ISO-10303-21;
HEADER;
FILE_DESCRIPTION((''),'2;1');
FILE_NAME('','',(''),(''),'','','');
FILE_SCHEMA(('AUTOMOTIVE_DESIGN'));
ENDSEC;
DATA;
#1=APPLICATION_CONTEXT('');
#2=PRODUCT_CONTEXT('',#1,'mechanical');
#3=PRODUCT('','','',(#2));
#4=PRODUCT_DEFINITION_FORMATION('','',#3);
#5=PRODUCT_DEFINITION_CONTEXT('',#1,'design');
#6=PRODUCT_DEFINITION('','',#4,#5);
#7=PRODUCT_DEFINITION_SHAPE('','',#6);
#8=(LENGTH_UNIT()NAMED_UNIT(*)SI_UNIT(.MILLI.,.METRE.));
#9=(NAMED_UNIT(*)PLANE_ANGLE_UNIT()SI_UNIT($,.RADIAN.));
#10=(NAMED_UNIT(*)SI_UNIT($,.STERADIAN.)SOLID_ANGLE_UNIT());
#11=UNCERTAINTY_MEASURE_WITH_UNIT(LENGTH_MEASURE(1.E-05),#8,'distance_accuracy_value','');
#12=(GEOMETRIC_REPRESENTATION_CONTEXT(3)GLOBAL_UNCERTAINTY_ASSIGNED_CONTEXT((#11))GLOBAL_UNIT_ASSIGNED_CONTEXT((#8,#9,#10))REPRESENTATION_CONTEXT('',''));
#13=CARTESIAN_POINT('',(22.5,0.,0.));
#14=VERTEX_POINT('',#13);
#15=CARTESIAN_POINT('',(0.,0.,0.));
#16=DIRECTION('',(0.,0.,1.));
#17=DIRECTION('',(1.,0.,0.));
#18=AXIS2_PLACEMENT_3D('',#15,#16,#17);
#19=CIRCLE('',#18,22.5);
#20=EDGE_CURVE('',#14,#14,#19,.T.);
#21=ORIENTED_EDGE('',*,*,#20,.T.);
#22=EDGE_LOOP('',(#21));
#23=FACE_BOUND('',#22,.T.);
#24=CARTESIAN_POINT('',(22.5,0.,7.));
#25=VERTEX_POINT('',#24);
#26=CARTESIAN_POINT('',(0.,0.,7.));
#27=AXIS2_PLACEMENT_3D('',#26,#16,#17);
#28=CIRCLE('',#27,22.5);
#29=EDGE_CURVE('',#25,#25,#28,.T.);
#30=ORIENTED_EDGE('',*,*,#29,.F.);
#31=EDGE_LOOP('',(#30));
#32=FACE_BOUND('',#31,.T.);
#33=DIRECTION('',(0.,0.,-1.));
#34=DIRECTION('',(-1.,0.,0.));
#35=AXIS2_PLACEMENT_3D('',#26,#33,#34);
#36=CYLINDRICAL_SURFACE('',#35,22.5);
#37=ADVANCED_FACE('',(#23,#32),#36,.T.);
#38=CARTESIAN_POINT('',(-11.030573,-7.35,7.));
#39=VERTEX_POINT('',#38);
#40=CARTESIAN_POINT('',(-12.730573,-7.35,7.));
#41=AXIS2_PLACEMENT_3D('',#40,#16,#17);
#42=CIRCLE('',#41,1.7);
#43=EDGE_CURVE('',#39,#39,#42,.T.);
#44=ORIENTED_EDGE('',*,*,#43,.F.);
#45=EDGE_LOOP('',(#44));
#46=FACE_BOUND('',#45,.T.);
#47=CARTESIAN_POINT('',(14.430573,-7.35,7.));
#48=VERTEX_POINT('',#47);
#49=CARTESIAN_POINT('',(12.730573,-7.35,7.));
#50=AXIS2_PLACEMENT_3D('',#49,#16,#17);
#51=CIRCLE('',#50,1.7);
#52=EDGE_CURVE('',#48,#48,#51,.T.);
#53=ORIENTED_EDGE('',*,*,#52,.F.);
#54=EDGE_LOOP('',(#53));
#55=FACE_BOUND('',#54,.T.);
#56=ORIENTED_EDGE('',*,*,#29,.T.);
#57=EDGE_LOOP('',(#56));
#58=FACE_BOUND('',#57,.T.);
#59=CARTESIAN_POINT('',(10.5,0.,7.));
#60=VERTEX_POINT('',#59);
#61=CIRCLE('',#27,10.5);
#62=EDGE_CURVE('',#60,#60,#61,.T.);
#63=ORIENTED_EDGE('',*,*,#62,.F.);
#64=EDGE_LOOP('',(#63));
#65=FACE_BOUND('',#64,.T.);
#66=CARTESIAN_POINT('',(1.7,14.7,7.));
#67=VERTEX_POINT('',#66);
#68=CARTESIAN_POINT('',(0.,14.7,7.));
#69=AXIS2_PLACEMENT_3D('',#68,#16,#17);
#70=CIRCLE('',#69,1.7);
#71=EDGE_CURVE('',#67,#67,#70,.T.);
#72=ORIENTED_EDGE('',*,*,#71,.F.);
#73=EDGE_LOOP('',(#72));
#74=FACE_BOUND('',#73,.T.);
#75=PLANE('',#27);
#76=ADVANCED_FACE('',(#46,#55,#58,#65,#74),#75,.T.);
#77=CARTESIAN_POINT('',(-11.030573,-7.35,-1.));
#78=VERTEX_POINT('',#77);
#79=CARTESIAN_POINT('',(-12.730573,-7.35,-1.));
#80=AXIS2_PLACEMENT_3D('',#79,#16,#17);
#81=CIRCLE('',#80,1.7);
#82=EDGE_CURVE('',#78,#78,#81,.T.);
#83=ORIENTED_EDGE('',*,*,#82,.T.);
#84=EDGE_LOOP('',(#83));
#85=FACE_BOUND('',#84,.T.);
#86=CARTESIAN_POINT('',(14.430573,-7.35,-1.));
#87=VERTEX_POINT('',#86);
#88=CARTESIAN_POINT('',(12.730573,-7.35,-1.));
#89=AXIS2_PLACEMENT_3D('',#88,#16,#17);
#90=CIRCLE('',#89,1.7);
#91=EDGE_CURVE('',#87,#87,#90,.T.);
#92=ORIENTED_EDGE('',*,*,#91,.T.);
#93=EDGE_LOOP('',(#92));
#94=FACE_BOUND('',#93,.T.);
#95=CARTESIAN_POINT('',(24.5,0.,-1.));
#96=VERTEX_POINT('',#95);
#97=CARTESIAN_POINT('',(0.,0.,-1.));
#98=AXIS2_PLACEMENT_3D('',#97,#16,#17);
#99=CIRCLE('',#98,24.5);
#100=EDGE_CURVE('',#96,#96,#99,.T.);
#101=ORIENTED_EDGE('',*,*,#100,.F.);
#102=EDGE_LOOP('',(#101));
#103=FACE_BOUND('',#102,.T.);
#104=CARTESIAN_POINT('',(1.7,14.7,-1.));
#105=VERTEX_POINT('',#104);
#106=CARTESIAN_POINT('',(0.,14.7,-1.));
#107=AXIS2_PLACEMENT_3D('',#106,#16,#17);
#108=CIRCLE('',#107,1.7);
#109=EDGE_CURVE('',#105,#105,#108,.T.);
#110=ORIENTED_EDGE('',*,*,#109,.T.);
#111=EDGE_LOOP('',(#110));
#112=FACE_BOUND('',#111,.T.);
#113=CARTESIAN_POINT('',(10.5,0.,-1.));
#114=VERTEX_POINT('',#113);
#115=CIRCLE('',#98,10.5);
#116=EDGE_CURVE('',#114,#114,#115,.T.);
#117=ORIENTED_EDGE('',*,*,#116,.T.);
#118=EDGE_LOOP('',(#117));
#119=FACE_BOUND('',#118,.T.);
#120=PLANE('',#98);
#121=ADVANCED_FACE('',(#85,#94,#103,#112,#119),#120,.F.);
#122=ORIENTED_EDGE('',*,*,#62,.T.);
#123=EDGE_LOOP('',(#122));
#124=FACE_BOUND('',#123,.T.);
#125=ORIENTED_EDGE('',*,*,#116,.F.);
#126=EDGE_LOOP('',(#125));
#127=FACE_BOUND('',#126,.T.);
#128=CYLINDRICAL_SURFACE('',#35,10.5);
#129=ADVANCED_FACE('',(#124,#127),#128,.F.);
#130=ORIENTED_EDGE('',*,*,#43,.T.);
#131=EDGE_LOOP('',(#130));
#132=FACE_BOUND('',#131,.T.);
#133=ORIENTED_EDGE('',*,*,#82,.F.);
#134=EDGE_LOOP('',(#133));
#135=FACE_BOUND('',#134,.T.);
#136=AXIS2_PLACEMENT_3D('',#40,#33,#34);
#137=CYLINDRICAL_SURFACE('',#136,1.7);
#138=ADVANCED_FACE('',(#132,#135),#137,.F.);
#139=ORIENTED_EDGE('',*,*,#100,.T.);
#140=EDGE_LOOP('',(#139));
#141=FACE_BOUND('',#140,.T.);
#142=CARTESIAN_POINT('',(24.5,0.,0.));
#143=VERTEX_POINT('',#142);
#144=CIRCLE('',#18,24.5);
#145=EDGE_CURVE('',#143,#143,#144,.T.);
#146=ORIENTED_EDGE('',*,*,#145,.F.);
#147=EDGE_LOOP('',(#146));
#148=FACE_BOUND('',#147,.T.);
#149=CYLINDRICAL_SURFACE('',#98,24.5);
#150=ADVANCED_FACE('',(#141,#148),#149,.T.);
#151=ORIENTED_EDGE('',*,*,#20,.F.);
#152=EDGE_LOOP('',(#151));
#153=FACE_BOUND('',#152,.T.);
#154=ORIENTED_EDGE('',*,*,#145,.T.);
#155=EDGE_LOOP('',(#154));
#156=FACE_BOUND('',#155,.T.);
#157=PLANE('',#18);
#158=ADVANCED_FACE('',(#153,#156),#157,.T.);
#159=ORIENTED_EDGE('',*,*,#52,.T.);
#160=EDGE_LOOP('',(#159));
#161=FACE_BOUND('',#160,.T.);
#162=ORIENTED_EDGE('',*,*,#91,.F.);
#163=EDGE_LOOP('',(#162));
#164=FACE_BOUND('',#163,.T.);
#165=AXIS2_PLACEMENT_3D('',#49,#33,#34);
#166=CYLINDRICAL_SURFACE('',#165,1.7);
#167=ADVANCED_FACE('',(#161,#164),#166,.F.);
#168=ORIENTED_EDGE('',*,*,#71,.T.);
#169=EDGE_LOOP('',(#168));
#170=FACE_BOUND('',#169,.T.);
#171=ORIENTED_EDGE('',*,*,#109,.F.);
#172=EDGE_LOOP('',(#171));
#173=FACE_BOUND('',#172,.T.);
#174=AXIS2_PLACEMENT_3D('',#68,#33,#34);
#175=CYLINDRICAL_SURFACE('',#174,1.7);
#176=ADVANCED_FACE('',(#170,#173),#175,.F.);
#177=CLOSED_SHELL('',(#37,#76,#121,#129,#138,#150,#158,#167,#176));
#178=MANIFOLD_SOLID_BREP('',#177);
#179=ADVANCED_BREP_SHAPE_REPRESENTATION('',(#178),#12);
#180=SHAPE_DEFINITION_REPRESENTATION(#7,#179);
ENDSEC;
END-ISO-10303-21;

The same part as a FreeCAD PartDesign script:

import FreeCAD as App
import Part
import Sketcher

doc = App.newDocument("Part")
body = doc.addObject("PartDesign::Body", "Body")

# Sketch on XY plane
sketch1 = body.newObject("Sketcher::SketchObject", "Sketch")
sketch1.AttachmentSupport = (doc.getObject("XY_Plane"), [""])
sketch1.MapMode = "FlatFace"
sketch1.addGeometry(Part.Circle(App.Vector(0, 0, 0), App.Vector(0, 0, 1), 22.5), False)
sketch1.addGeometry(Part.Circle(App.Vector(-12.730573, -7.35, 0), App.Vector(0, 0, 1), 1.7), False)
sketch1.addGeometry(Part.Circle(App.Vector(12.730573, -7.35, 0), App.Vector(0, 0, 1), 1.7), False)
sketch1.addGeometry(Part.Circle(App.Vector(0, 0, 0), App.Vector(0, 0, 1), 10.5), False)
sketch1.addGeometry(Part.Circle(App.Vector(0, 14.7, 0), App.Vector(0, 0, 1), 1.7), False)
sketch1.addConstraint(Sketcher.Constraint("Coincident", 0, 3, -1, 1))
sketch1.addConstraint(Sketcher.Constraint("Coincident", 3, 3, -1, 1))
sketch1.addConstraint(Sketcher.Constraint("Equal", 1, 2))
sketch1.addConstraint(Sketcher.Constraint("Equal", 2, 4))
sketch1.addConstraint(Sketcher.Constraint("Symmetric", 1, 3, 2, 3, -2))
sketch1.addConstraint(Sketcher.Constraint("PointOnObject", 4, 3, -2))
sketch1.addConstraint(Sketcher.Constraint("Diameter", 0, 45.0))
sketch1.addConstraint(Sketcher.Constraint("Diameter", 3, 21.0))
sketch1.addConstraint(Sketcher.Constraint("Diameter", 1, 3.4))
sketch1.addConstraint(Sketcher.Constraint("DistanceY", -1, 1, 4, 3, 14.7))
sketch1.addConstraint(Sketcher.Constraint("DistanceY", 1, 3, -1, 1, 7.35))
sketch1.addConstraint(Sketcher.Constraint("DistanceX", 1, 3, -1, 1, 12.730573))
pad1 = body.newObject("PartDesign::Pad", "Pad")
pad1.Profile = sketch1
pad1.Length = 7

# Sketch on XY plane
sketch2 = body.newObject("Sketcher::SketchObject", "Sketch001")
sketch2.AttachmentSupport = (doc.getObject("XY_Plane"), [""])
sketch2.MapMode = "FlatFace"
sketch2.AttachmentOffset = App.Placement(App.Vector(0, 0, -1), App.Rotation())
sketch2.addGeometry(Part.Circle(App.Vector(0, 0, 0), App.Vector(0, 0, 1), 24.5), False)
sketch2.addGeometry(Part.Circle(App.Vector(0, 14.7, 0), App.Vector(0, 0, 1), 1.7), False)
sketch2.addGeometry(Part.Circle(App.Vector(-12.730573, -7.35, 0), App.Vector(0, 0, 1), 1.7), False)
sketch2.addGeometry(Part.Circle(App.Vector(12.730573, -7.35, 0), App.Vector(0, 0, 1), 1.7), False)
sketch2.addGeometry(Part.Circle(App.Vector(0, 0, 0), App.Vector(0, 0, 1), 10.5), False)
sketch2.addConstraint(Sketcher.Constraint("Coincident", 0, 3, -1, 1))
sketch2.addConstraint(Sketcher.Constraint("Coincident", 4, 3, -1, 1))
sketch2.addConstraint(Sketcher.Constraint("Equal", 1, 2))
sketch2.addConstraint(Sketcher.Constraint("Equal", 2, 3))
sketch2.addConstraint(Sketcher.Constraint("Symmetric", 2, 3, 3, 3, -2))
sketch2.addConstraint(Sketcher.Constraint("PointOnObject", 1, 3, -2))
sketch2.addConstraint(Sketcher.Constraint("Diameter", 0, 49.0))
sketch2.addConstraint(Sketcher.Constraint("Diameter", 4, 21.0))
sketch2.addConstraint(Sketcher.Constraint("Diameter", 1, 3.4))
sketch2.addConstraint(Sketcher.Constraint("DistanceY", -1, 1, 1, 3, 14.7))
sketch2.addConstraint(Sketcher.Constraint("DistanceY", 2, 3, -1, 1, 7.35))
sketch2.addConstraint(Sketcher.Constraint("DistanceX", 2, 3, -1, 1, 12.730573))
pad2 = body.newObject("PartDesign::Pad", "Pad001")
pad2.Profile = sketch2
pad2.Length = 1

doc.recompute()
